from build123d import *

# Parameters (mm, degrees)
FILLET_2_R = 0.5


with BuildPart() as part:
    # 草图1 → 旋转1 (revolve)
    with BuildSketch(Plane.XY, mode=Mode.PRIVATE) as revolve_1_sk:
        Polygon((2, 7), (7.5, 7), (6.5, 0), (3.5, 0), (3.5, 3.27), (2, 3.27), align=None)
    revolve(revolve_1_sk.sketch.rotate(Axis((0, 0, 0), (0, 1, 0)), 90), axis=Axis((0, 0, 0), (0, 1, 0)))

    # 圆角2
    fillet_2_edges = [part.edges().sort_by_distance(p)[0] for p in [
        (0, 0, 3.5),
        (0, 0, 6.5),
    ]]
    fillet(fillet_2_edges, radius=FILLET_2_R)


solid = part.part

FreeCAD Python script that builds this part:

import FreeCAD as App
import Part
import Sketcher


def edges_at(feature, points):
    """Names of the edges that pass closest to the given points."""
    edges = feature.Shape.Edges
    near = lambda p: min(range(len(edges)), key=lambda i: edges[i].distToShape(Part.Vertex(*p))[0])
    return sorted({f"Edge{near(p) + 1}" for p in points})

doc = App.newDocument("Part")
body = doc.addObject("PartDesign::Body", "Body")

# Sketch on XY plane
sketch1 = body.newObject("Sketcher::SketchObject", "Sketch")
sketch1.AttachmentSupport = (doc.getObject("XY_Plane"), [""])
sketch1.MapMode = "FlatFace"
sketch1.addGeometry(Part.LineSegment(App.Vector(7.5, 7, 0), App.Vector(2, 7, 0)), False)
sketch1.addGeometry(Part.LineSegment(App.Vector(2, 7, 0), App.Vector(2, 3.27, 0)), False)
sketch1.addGeometry(Part.LineSegment(App.Vector(2, 3.27, 0), App.Vector(3.5, 3.27, 0)), False)
sketch1.addGeometry(Part.LineSegment(App.Vector(3.5, 3.27, 0), App.Vector(3.5, 0, 0)), False)
sketch1.addGeometry(Part.LineSegment(App.Vector(3.5, 0, 0), App.Vector(6.5, 0, 0)), False)
sketch1.addGeometry(Part.LineSegment(App.Vector(6.5, 0, 0), App.Vector(7.5, 7, 0)), False)
sketch1.addConstraint(Sketcher.Constraint("Coincident", 0, 2, 1, 1))
sketch1.addConstraint(Sketcher.Constraint("Coincident", 1, 2, 2, 1))
sketch1.addConstraint(Sketcher.Constraint("Coincident", 2, 2, 3, 1))
sketch1.addConstraint(Sketcher.Constraint("Coincident", 3, 2, 4, 1))
sketch1.addConstraint(Sketcher.Constraint("Coincident", 4, 2, 5, 1))
sketch1.addConstraint(Sketcher.Constraint("Coincident", 5, 2, 0, 1))
sketch1.addConstraint(Sketcher.Constraint("Horizontal", 0))
sketch1.addConstraint(Sketcher.Constraint("Vertical", 1))
sketch1.addConstraint(Sketcher.Constraint("Horizontal", 2))
sketch1.addConstraint(Sketcher.Constraint("Vertical", 3))
sketch1.addConstraint(Sketcher.Constraint("Horizontal", 4))
sketch1.addConstraint(Sketcher.Constraint("PointOnObject", 3, 2, -1))
sketch1.addConstraint(Sketcher.Constraint("DistanceX", 4, 1, 4, 2, 3.0))
sketch1.addConstraint(Sketcher.Constraint("DistanceX", 0, 2, 0, 1, 5.5))
sketch1.addConstraint(Sketcher.Constraint("DistanceX", 2, 1, 2, 2, 1.5))
sketch1.addConstraint(Sketcher.Constraint("DistanceX", -1, 1, 0, 2, 2.0))
sketch1.addConstraint(Sketcher.Constraint("DistanceY", -1, 1, 0, 2, 7.0))
sketch1.addConstraint(Sketcher.Constraint("DistanceY", 1, 2, 1, 1, 3.73))
revolution = body.newObject("PartDesign::Revolution", "Revolution")
revolution.Profile = sketch1
revolution.ReferenceAxis = (sketch1, ["V_Axis"])
revolution.Angle = 360
doc.recompute()

fillet = body.newObject("PartDesign::Fillet", "Fillet")
fillet.Base = (revolution, edges_at(revolution, [(0, 0, 3.5), (0, 0, 6.5)]))
fillet.Radius = 0.5

doc.recompute()
